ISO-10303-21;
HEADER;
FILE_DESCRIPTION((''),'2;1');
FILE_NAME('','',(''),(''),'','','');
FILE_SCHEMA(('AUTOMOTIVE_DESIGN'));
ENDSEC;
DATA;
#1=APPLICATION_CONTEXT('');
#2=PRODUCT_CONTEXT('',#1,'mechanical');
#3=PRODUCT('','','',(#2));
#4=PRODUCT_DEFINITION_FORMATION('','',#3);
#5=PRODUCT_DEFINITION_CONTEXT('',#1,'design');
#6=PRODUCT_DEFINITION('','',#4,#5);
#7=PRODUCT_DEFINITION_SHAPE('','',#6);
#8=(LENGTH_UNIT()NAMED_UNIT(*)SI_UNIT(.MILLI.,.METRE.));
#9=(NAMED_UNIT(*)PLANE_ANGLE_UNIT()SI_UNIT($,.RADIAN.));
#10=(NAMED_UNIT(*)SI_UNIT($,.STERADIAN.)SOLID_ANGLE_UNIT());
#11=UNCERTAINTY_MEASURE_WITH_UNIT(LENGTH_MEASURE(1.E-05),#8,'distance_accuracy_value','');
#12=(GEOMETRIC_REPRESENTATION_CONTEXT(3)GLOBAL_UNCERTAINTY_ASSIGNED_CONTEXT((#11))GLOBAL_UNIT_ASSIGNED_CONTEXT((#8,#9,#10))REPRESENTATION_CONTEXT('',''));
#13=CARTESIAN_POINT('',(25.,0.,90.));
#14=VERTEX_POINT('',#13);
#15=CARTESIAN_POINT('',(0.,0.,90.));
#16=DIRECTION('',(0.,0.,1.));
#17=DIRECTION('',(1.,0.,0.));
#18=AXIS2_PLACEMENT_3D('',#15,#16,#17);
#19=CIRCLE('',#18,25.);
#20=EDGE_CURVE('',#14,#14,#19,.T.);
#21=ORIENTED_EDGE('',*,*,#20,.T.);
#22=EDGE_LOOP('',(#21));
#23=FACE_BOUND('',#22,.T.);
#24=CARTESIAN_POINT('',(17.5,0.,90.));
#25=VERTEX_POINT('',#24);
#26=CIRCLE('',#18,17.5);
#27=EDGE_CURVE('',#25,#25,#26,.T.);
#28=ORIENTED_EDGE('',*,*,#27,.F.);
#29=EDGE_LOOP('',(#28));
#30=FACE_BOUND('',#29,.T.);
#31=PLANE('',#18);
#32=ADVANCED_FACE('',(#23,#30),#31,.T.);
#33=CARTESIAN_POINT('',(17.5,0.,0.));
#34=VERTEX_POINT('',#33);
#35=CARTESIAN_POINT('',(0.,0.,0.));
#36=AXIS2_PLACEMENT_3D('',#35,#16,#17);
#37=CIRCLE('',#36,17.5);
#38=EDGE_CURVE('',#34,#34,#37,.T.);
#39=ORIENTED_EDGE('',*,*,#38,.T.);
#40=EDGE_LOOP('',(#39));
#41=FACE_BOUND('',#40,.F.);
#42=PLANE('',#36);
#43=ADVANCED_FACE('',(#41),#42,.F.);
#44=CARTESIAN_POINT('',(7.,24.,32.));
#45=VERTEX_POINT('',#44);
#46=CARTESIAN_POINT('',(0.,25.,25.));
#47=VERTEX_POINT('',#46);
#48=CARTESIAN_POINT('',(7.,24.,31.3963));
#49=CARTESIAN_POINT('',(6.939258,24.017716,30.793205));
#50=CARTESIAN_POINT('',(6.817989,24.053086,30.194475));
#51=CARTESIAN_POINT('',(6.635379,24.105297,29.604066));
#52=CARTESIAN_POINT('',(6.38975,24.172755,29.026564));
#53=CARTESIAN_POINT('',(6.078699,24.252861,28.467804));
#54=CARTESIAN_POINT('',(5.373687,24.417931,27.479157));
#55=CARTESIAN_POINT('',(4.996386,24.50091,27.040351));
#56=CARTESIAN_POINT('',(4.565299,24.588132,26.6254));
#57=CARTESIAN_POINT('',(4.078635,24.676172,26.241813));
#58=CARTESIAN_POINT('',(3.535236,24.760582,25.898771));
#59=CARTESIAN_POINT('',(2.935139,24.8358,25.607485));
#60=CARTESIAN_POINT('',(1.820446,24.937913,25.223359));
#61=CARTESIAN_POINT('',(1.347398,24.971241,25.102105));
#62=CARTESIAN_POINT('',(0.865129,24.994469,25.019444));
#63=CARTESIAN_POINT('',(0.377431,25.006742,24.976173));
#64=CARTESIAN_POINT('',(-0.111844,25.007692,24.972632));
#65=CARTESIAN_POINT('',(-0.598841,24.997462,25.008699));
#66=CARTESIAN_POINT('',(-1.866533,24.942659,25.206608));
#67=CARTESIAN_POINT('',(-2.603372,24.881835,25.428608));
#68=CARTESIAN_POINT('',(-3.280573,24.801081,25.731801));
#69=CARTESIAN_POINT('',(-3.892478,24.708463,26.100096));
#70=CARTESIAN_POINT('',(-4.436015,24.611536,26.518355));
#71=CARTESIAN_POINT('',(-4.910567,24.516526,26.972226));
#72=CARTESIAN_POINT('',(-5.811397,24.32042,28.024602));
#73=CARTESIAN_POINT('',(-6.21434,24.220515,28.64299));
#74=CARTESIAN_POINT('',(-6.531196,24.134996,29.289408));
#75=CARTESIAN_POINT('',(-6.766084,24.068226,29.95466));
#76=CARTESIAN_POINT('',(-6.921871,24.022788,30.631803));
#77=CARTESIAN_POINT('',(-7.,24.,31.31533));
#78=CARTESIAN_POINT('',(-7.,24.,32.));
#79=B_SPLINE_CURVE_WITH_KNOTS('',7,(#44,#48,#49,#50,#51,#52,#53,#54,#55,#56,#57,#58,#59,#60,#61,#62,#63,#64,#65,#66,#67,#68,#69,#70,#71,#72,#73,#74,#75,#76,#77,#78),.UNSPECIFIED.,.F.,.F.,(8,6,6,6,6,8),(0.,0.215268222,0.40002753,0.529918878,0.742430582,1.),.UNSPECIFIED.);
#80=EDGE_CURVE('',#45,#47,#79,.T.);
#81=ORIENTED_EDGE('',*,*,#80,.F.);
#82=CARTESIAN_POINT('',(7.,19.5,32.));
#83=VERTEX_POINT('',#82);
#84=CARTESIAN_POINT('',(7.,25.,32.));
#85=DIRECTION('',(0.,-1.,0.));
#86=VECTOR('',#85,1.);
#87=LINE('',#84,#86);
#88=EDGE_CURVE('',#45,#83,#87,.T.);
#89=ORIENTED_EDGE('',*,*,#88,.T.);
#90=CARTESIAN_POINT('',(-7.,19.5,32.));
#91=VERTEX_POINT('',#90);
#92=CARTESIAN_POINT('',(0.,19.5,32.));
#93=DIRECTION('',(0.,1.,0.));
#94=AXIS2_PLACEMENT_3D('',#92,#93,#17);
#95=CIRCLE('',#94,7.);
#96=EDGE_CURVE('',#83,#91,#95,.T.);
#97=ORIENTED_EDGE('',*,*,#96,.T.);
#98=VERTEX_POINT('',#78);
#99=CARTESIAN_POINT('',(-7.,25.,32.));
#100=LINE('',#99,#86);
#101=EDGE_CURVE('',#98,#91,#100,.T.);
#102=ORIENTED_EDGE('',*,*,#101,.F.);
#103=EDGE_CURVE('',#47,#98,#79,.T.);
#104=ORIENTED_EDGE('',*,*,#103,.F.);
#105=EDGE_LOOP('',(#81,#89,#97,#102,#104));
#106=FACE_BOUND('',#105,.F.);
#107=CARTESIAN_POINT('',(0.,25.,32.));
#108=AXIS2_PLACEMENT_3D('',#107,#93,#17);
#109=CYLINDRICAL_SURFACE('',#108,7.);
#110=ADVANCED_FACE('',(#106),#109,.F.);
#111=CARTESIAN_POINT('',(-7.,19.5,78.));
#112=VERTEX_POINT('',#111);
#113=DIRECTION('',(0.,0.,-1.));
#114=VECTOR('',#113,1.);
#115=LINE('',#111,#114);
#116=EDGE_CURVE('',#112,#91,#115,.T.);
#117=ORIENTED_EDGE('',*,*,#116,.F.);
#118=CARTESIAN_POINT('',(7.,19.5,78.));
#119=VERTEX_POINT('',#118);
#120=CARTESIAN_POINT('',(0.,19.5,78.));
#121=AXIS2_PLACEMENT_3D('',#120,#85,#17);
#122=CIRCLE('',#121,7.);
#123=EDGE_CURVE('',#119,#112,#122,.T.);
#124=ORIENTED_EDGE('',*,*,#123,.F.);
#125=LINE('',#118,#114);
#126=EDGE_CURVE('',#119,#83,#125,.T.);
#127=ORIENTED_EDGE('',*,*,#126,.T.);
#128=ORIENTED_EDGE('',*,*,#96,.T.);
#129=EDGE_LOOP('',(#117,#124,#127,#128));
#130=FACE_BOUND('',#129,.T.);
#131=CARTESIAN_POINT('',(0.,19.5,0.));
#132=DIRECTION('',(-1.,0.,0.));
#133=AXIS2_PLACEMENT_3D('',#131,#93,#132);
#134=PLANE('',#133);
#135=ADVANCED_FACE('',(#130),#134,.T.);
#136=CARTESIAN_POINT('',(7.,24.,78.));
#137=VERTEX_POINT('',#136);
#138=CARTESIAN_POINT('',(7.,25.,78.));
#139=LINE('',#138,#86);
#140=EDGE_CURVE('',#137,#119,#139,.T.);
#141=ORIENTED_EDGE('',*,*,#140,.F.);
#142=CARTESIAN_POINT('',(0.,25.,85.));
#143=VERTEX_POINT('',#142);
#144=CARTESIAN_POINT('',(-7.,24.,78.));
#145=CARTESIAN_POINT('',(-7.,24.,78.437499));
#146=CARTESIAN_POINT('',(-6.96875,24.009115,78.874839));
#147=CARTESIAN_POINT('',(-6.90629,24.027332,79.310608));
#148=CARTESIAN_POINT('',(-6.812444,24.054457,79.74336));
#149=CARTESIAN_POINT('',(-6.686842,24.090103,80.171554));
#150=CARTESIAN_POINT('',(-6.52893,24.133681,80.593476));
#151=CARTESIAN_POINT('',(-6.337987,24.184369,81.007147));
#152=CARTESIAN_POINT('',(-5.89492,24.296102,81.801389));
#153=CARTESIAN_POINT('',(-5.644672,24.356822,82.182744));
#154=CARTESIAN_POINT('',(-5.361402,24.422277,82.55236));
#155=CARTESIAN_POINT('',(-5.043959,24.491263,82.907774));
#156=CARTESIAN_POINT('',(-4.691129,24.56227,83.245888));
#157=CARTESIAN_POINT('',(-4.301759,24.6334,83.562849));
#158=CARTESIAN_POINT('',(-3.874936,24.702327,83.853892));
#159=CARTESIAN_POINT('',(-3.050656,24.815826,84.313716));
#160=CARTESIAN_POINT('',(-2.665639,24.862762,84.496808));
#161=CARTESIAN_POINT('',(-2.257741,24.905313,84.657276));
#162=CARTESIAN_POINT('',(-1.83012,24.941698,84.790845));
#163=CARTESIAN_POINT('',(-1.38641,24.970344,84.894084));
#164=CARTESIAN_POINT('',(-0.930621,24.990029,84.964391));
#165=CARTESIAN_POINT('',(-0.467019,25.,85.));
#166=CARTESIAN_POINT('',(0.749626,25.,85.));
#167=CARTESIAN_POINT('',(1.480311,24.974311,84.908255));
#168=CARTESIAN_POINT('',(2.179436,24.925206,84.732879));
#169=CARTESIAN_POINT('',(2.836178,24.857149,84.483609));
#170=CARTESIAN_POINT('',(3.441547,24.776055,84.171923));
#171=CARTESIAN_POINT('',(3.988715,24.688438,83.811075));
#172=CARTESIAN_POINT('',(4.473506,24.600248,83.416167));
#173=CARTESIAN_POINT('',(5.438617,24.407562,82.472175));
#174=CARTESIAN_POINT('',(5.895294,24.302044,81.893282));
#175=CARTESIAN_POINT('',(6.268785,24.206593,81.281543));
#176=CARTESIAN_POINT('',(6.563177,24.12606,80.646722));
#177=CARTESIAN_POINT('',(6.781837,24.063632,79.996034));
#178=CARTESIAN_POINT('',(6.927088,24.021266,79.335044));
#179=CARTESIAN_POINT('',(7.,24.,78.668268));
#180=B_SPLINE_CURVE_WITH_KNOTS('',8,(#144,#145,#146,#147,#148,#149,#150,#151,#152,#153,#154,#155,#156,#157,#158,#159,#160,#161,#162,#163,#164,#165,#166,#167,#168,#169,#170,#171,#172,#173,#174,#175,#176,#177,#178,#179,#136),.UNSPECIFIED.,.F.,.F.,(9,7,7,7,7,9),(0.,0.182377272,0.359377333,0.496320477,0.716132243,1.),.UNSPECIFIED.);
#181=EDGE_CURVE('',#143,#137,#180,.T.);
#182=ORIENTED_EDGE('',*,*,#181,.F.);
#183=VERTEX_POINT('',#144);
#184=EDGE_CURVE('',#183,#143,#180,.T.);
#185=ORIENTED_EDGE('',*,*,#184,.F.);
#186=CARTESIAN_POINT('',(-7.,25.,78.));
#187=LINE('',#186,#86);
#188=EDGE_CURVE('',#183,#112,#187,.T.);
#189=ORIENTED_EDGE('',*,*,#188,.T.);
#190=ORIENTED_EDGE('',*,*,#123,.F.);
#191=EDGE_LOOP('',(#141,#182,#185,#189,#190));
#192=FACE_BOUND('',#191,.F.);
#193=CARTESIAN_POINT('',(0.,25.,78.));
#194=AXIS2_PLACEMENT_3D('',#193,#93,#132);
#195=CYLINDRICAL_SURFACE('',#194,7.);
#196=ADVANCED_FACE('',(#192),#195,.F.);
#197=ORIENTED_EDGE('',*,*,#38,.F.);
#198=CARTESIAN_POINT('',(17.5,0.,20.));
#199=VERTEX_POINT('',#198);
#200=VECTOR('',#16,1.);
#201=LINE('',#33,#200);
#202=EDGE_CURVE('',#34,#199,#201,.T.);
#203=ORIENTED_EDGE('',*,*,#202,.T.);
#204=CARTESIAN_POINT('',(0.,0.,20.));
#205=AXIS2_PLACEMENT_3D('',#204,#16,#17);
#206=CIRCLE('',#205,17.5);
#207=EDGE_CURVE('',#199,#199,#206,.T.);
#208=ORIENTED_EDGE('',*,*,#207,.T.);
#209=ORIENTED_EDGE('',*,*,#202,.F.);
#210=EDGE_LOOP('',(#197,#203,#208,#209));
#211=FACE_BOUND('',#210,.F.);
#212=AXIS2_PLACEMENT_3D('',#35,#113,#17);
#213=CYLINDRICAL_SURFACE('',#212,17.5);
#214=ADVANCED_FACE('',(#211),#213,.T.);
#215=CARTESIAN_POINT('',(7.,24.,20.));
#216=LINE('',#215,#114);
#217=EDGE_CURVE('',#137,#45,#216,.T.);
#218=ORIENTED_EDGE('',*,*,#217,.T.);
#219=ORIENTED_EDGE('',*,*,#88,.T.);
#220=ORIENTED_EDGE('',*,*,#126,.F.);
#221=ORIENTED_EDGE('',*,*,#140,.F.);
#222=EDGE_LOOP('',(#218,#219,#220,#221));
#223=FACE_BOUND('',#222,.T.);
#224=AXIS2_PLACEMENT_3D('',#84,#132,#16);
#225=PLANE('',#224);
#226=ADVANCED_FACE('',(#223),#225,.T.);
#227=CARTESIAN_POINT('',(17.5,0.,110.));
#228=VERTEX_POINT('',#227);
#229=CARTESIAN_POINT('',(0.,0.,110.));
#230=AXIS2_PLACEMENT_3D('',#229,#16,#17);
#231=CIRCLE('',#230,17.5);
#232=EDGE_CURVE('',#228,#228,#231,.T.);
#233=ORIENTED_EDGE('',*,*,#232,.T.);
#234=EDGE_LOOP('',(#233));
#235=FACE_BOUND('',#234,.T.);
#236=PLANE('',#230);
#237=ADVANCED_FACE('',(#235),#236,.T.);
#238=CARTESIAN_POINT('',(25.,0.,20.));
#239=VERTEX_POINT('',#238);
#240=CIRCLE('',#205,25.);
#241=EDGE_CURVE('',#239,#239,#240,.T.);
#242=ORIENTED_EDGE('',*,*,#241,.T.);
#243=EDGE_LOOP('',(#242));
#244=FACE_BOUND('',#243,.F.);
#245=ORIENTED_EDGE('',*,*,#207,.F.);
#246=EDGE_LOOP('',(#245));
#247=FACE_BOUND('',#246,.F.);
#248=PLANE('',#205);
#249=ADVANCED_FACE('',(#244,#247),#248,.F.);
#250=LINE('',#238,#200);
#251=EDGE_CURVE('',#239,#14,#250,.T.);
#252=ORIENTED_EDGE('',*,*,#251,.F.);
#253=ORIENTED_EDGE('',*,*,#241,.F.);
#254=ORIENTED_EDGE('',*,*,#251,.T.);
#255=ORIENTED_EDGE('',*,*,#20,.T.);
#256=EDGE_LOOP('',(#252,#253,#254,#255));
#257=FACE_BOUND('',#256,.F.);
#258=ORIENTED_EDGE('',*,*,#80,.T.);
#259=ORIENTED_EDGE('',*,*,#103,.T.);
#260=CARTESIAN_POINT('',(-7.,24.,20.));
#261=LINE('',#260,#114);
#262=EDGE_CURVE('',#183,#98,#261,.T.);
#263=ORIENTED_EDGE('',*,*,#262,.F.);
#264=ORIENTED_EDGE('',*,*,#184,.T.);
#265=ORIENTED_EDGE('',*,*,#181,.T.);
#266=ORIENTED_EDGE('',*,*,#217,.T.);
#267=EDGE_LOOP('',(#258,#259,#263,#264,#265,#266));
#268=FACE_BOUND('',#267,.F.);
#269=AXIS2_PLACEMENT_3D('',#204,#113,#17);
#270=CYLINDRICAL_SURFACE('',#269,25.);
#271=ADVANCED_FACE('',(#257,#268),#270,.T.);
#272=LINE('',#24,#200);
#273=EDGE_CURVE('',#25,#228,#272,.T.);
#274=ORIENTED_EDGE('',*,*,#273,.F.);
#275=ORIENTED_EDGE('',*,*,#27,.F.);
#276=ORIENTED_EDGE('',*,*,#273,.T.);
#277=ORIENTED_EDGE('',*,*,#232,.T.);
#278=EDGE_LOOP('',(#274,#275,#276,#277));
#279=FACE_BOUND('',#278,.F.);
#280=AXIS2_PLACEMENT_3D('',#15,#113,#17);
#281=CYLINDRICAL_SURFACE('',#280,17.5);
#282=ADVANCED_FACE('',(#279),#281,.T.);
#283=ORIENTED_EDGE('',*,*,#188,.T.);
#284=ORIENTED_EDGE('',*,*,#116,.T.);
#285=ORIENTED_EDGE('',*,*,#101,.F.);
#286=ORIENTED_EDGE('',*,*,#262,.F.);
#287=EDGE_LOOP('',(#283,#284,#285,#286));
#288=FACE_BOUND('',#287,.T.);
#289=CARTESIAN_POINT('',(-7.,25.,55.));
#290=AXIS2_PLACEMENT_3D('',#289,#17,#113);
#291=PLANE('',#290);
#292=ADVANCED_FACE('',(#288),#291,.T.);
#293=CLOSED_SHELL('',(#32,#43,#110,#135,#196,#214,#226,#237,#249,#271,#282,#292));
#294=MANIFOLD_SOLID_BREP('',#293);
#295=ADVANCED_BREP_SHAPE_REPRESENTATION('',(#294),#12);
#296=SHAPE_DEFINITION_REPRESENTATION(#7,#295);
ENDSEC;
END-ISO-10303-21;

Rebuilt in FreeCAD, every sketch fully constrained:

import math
import FreeCAD as App
import Part
import Sketcher
from FreeCAD import Vector

doc = App.newDocument("Part")
body = doc.addObject("PartDesign::Body", "Body")

# Sketch on XY plane
sketch1 = body.newObject("Sketcher::SketchObject", "Sketch")
sketch1.AttachmentSupport = (doc.getObject("XY_Plane"), [""])
sketch1.MapMode = "FlatFace"
sketch1.addGeometry(Part.Circle(Vector(0, 0, 0), Vector(0, 0, 1), 18), False)
sketch1.addConstraint([
    Sketcher.Constraint("Coincident", 0, 3, -1, 1),
    Sketcher.Constraint("Diameter", 0, 35.0),
])
pad1 = body.newObject("PartDesign::Pad", "Pad")
pad1.Profile = sketch1
pad1.Length = 20

# Sketch on XY plane
sketch2 = body.newObject("Sketcher::SketchObject", "Sketch001")
sketch2.AttachmentSupport = (doc.getObject("XY_Plane"), [""])
sketch2.MapMode = "FlatFace"
sketch2.AttachmentOffset = App.Placement(Vector(0, 0, 20), App.Rotation())
sketch2.addGeometry(Part.Circle(Vector(0, 0, 0), Vector(0, 0, 1), 25), False)
sketch2.addConstraint([
    Sketcher.Constraint("Coincident", 0, 3, -1, 1),
    Sketcher.Constraint("Diameter", 0, 50.0),
])
pad2 = body.newObject("PartDesign::Pad", "Pad001")
pad2.Profile = sketch2
pad2.Length = 70

# Sketch on XY plane
sketch3 = body.newObject("Sketcher::SketchObject", "Sketch002")
sketch3.AttachmentSupport = (doc.getObject("XY_Plane"), [""])
sketch3.MapMode = "FlatFace"
sketch3.AttachmentOffset = App.Placement(Vector(0, 0, 90), App.Rotation())
sketch3.addGeometry(Part.Circle(Vector(0, 0, 0), Vector(0, 0, 1), 18), False)
sketch3.addConstraint([
    Sketcher.Constraint("Coincident", 0, 3, -1, 1),
    Sketcher.Constraint("Diameter", 0, 35.0),
])
pad3 = body.newObject("PartDesign::Pad", "Pad002")
pad3.Profile = sketch3
pad3.Length = 20

# Sketch on XZ plane
sketch4 = body.newObject("Sketcher::SketchObject", "Sketch003")
sketch4.AttachmentSupport = (doc.getObject("XZ_Plane"), [""])
sketch4.MapMode = "FlatFace"
sketch4.AttachmentOffset = App.Placement(Vector(0, 0, -25), App.Rotation())
sketch4.addGeometry([
    Part.ArcOfCircle(Part.Circle(Vector(0, 32, 0), Vector(0, 0, 1), 7), math.radians(180), math.radians(360)),
    Part.LineSegment(Vector(-7, 32, 0), Vector(-7, 78, 0)),
    Part.ArcOfCircle(Part.Circle(Vector(0, 78, 0), Vector(0, 0, 1), 7), math.radians(0), math.radians(180)),
    Part.LineSegment(Vector(7, 78, 0), Vector(7, 32, 0)),
], False)
sketch4.addConstraint([
    Sketcher.Constraint("Tangent", 0, 1, 1, 1),
    Sketcher.Constraint("Tangent", 1, 2, 2, 2),
    Sketcher.Constraint("Tangent", 2, 1, 3, 1),
    Sketcher.Constraint("Tangent", 3, 2, 0, 2),
    Sketcher.Constraint("Vertical", 1),
    Sketcher.Constraint("Vertical", 3),
    Sketcher.Constraint("PointOnObject", 0, 3, -2),
    Sketcher.Constraint("Radius", 0, 7.0),
    Sketcher.Constraint("DistanceY", 1, 1, 1, 2, 46.0),
    Sketcher.Constraint("DistanceY", -1, 1, 0, 3, 32.0),
])
pocket1 = body.newObject("PartDesign::Pocket", "Pocket")
pocket1.Profile = sketch4
pocket1.Length = 5.5
pocket1.Reversed = True

doc.recompute()
